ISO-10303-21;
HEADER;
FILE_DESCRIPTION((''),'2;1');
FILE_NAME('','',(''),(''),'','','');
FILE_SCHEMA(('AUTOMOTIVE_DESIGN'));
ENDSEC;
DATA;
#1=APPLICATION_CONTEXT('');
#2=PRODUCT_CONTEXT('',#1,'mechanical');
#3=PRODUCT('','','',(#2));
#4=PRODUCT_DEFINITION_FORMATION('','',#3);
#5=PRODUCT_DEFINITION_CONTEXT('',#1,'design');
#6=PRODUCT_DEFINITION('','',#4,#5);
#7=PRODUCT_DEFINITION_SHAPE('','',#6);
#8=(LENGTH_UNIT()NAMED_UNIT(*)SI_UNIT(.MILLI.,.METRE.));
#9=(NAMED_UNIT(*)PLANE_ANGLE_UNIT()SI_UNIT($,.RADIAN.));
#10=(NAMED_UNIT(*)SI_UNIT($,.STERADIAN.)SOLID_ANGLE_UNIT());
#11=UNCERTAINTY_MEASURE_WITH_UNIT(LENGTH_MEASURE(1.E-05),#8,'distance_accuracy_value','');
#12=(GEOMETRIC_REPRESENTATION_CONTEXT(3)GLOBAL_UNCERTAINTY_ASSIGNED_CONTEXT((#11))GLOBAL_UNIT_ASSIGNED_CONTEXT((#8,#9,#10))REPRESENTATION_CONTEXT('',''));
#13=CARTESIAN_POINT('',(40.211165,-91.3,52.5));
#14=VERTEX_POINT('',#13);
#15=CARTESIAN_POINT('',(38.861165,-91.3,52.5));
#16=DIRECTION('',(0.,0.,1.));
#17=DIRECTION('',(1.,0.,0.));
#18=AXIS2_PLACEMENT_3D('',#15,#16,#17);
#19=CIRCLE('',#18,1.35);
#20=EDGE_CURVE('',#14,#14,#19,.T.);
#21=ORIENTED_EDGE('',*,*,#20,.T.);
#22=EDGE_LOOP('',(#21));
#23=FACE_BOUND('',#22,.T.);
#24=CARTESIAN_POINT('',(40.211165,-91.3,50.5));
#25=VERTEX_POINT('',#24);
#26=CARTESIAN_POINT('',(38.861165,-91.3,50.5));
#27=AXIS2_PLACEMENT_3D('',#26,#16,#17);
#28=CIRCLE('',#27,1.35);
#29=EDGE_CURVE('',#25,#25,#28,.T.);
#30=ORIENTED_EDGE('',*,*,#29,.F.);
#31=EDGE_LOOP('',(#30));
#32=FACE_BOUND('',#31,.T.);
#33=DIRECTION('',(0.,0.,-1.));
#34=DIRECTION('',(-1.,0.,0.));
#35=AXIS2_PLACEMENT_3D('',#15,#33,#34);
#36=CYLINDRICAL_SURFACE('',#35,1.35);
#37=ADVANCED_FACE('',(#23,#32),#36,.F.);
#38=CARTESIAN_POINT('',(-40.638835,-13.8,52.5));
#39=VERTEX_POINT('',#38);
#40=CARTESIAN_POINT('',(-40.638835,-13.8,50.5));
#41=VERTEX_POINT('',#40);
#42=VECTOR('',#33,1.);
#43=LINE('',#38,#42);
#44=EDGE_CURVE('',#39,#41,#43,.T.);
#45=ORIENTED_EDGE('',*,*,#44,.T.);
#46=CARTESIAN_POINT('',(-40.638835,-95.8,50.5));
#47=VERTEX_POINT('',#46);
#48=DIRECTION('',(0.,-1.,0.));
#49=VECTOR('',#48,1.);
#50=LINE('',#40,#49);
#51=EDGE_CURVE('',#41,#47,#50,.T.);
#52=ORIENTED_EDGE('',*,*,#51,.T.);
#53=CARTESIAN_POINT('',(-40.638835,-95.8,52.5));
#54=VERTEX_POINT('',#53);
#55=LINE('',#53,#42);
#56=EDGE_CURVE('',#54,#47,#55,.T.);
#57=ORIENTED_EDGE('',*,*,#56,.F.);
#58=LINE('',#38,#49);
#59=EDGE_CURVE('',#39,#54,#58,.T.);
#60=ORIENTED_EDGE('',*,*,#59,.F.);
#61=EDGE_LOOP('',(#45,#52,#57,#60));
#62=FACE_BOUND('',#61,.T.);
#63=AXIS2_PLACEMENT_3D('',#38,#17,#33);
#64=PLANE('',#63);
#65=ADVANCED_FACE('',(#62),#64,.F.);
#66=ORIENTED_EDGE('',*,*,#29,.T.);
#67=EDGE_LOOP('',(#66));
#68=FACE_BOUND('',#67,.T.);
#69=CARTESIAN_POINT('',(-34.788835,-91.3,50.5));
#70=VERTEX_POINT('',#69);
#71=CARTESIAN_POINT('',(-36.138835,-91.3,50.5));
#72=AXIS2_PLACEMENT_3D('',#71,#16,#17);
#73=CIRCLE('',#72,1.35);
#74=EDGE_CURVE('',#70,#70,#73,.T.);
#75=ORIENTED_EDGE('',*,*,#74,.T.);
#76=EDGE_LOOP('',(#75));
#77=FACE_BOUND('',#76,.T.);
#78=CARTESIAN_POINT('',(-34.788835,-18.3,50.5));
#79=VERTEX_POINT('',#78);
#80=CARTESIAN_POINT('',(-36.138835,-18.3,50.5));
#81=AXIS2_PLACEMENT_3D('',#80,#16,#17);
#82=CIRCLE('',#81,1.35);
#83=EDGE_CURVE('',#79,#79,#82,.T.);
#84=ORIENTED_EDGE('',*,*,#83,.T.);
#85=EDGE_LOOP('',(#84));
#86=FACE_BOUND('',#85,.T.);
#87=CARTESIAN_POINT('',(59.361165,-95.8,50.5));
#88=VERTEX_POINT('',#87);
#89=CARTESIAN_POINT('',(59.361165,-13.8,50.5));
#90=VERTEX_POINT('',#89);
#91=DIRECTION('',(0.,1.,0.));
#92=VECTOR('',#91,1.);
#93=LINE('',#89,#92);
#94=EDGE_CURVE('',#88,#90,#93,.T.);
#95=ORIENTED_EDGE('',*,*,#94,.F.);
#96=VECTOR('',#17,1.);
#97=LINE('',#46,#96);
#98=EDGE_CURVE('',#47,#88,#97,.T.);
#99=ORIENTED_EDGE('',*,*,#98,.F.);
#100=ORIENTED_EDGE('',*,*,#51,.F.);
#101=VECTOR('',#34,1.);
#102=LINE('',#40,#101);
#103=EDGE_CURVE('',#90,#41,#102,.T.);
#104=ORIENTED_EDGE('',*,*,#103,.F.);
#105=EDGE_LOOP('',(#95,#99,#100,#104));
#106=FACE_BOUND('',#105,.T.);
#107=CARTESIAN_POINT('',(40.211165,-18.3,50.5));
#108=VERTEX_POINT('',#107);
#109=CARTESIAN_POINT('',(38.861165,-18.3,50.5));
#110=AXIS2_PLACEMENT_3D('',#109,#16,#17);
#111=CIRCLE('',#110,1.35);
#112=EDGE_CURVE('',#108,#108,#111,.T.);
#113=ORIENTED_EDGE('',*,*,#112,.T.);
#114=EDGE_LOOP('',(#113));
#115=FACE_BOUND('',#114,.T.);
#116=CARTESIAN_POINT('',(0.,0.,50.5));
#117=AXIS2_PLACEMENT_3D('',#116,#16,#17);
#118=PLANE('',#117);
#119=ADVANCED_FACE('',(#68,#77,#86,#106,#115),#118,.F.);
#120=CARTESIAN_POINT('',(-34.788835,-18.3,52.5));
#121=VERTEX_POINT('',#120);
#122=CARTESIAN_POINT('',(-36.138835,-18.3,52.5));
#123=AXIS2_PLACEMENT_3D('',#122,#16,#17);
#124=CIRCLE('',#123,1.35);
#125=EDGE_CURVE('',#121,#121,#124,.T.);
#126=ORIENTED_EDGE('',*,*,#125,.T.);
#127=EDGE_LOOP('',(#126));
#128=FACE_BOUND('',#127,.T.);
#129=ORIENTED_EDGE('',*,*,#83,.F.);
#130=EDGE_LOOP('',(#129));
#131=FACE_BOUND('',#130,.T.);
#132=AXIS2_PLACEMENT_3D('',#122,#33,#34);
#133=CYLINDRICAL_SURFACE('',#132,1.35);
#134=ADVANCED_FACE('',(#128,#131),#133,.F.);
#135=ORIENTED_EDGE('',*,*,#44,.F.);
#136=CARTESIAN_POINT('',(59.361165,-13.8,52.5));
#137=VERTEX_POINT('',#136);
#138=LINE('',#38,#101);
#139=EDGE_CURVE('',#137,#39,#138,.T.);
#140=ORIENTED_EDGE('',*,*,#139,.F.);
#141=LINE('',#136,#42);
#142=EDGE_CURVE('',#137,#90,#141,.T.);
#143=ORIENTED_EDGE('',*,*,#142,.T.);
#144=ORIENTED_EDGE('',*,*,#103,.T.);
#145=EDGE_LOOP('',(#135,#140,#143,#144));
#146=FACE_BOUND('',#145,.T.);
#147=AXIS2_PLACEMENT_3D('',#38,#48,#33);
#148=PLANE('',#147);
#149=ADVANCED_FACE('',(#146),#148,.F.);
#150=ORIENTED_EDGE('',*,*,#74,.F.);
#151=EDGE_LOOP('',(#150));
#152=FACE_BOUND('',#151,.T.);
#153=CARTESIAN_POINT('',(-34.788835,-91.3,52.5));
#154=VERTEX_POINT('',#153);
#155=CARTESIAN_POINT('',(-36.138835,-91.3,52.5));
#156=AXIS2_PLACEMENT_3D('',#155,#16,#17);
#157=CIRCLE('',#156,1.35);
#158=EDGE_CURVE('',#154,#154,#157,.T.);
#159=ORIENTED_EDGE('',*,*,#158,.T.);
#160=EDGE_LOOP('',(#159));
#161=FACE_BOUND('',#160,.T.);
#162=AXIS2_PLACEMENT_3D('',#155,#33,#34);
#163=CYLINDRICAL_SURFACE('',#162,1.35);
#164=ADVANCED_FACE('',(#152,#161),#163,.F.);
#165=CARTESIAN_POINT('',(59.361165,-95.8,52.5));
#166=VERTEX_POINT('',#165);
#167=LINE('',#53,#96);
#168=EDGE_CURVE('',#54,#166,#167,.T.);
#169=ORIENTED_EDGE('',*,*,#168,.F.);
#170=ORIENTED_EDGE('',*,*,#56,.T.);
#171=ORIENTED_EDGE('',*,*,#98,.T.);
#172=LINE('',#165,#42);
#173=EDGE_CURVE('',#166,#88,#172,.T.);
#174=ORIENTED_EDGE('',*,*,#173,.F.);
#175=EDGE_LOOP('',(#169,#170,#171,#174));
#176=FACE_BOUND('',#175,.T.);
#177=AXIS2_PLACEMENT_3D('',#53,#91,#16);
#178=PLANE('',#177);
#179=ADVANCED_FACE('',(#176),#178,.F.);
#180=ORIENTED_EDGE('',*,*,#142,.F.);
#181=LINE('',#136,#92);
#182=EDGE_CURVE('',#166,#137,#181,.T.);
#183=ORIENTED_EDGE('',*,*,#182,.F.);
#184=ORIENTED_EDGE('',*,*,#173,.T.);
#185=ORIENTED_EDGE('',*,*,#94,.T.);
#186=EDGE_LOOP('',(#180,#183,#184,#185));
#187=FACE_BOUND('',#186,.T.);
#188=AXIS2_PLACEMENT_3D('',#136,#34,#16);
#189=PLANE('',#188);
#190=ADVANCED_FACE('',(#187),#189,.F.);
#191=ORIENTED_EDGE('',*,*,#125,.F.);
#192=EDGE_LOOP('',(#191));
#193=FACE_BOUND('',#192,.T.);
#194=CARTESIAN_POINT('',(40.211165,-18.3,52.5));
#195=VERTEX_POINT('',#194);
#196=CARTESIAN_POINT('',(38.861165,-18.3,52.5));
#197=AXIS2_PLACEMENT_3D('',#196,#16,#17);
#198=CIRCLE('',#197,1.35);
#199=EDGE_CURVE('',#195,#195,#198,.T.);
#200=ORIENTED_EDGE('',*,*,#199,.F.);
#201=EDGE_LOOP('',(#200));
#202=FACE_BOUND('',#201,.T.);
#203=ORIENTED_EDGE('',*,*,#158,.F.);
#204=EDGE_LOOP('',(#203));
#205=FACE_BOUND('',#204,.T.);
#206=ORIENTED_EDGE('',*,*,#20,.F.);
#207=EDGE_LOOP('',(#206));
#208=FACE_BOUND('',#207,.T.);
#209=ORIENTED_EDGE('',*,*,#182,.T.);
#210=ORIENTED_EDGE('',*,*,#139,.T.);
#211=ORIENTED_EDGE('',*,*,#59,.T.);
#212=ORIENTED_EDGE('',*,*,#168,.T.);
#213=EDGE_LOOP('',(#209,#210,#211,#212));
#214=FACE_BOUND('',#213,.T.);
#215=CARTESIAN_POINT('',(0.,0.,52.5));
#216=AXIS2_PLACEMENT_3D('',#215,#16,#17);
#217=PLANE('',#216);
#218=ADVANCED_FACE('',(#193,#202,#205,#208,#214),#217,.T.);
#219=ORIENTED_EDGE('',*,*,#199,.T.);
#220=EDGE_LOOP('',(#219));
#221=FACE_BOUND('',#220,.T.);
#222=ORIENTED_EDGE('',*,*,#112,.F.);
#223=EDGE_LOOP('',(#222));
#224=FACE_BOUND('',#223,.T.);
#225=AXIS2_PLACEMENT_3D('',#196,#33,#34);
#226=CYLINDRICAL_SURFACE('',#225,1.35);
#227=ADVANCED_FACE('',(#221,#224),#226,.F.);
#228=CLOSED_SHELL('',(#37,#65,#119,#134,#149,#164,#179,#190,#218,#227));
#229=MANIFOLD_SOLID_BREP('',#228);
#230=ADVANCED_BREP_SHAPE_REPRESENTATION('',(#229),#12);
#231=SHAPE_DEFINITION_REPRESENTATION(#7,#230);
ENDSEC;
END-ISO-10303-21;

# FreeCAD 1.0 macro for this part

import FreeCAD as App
import Part
import Sketcher


def add_polygon(sketch, points):
    """Adds a closed chain of lines whose ends are joined by coincident constraints."""
    first, n = sketch.GeometryCount, len(points)
    for a, b in zip(points, points[1:] + points[:1]):
        sketch.addGeometry(Part.LineSegment(App.Vector(*a, 0), App.Vector(*b, 0)), False)
    for i in range(n):
        sketch.addConstraint(Sketcher.Constraint("Coincident", first + i, 2, first + (i + 1) % n, 1))

doc = App.newDocument("Part")
body = doc.addObject("PartDesign::Body", "Body")

sketch1 = body.newObject("Sketcher::SketchObject", "Sketch")
sketch1.AttachmentSupport = (doc.getObject("XY_Plane"), [""])
sketch1.MapMode = "FlatFace"
sketch1.AttachmentOffset = App.Placement(App.Vector(0, 0, 50.5), App.Rotation())
add_polygon(sketch1, [(-40.6, -13.8), (-40.6, -95.8), (59.4, -95.8), (59.4, -13.8)])
sketch1.addGeometry(Part.Circle(App.Vector(-36.1, -91.3, 0), App.Vector(0, 0, 1), 1.4), False)
sketch1.addGeometry(Part.Circle(App.Vector(38.9, -91.3, 0), App.Vector(0, 0, 1), 1.4), False)
sketch1.addGeometry(Part.Circle(App.Vector(-36.1, -18.3, 0), App.Vector(0, 0, 1), 1.4), False)
sketch1.addGeometry(Part.Circle(App.Vector(38.9, -18.3, 0), App.Vector(0, 0, 1), 1.4), False)
sketch1.addConstraint(Sketcher.Constraint("Vertical", 0))
sketch1.addConstraint(Sketcher.Constraint("Horizontal", 1))
sketch1.addConstraint(Sketcher.Constraint("Vertical", 2))
sketch1.addConstraint(Sketcher.Constraint("Horizontal", 3))
sketch1.addConstraint(Sketcher.Constraint("Equal", 4, 5))
sketch1.addConstraint(Sketcher.Constraint("Equal", 5, 6))
sketch1.addConstraint(Sketcher.Constraint("Equal", 6, 7))
sketch1.addConstraint(Sketcher.Constraint("Horizontal", 4, 3, 5, 3))
sketch1.addConstraint(Sketcher.Constraint("Horizontal", 6, 3, 7, 3))
sketch1.addConstraint(Sketcher.Constraint("Vertical", 4, 3, 6, 3))
sketch1.addConstraint(Sketcher.Constraint("Vertical", 5, 3, 7, 3))
sketch1.addConstraint(Sketcher.Constraint("Diameter", 4, 2.7))
sketch1.addConstraint(Sketcher.Constraint("DistanceX", 1, 1, 1, 2, 100.0))
sketch1.addConstraint(Sketcher.Constraint("DistanceY", 0, 2, 0, 1, 82.0))
sketch1.addConstraint(Sketcher.Constraint("DistanceX", 4, 3, 5, 3, 75.0))
sketch1.addConstraint(Sketcher.Constraint("DistanceY", 4, 3, 6, 3, 73.0))
sketch1.addConstraint(Sketcher.Constraint("DistanceY", 4, 3, -1, 1, 91.3))
sketch1.addConstraint(Sketcher.Constraint("DistanceY", 0, 2, -1, 1, 95.8))
sketch1.addConstraint(Sketcher.Constraint("DistanceX", 0, 2, 4, 3, 4.5))
sketch1.addConstraint(Sketcher.Constraint("DistanceX", 4, 3, -1, 1, 36.138835))
pad1 = body.newObject("PartDesign::Pad", "Pad")
pad1.Profile = sketch1
pad1.Length = 2

doc.recompute()
